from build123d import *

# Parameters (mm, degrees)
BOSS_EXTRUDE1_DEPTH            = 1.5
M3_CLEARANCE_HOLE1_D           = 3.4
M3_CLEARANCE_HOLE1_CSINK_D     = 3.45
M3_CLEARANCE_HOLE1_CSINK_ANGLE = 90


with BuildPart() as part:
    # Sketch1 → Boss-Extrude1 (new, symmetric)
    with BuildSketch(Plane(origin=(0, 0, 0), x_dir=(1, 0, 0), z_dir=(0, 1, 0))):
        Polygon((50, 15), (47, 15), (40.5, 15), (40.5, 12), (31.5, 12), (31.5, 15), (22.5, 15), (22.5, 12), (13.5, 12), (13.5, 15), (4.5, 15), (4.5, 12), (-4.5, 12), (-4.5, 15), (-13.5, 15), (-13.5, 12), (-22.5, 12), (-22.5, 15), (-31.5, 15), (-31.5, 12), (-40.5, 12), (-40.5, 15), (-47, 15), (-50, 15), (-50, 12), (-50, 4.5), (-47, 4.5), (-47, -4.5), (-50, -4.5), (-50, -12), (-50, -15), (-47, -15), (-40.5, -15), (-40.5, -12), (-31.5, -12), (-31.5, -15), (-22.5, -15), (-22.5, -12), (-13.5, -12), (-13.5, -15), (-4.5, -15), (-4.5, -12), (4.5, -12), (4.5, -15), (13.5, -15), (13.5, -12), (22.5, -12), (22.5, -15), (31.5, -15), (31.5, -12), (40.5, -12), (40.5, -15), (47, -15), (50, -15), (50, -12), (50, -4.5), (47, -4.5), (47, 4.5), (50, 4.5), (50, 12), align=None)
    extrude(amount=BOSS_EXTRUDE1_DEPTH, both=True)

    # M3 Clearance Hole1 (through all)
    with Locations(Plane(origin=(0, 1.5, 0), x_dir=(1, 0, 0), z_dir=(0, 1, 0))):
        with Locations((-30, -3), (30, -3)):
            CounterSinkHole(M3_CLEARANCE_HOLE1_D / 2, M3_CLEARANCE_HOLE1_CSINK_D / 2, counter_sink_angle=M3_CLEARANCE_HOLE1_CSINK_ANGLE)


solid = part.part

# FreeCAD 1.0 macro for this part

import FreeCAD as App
import Part
import Sketcher

V = App.Vector

doc = App.newDocument("Part")
body = doc.addObject("PartDesign::Body", "Body")

# Sketch on XZ plane
sketch1 = doc.addObject("Sketcher::SketchObject", "Sketch")
body.addObject(sketch1)
sketch1.AttachmentSupport = (doc.XZ_Plane, [""])
sketch1.MapMode = "FlatFace"
sketch1.addGeometry(Part.LineSegment(V(50, -15, 0), V(40.5, -15, 0)), False)
sketch1.addGeometry(Part.LineSegment(V(40.5, -15, 0), V(40.5, -12, 0)), False)
sketch1.addGeometry(Part.LineSegment(V(40.5, -12, 0), V(31.5, -12, 0)), False)
sketch1.addGeometry(Part.LineSegment(V(31.5, -12, 0), V(31.5, -15, 0)), False)
sketch1.addGeometry(Part.LineSegment(V(31.5, -15, 0), V(22.5, -15, 0)), False)
sketch1.addGeometry(Part.LineSegment(V(22.5, -15, 0), V(22.5, -12, 0)), False)
sketch1.addGeometry(Part.LineSegment(V(22.5, -12, 0), V(13.5, -12, 0)), False)
sketch1.addGeometry(Part.LineSegment(V(13.5, -12, 0), V(13.5, -15, 0)), False)
sketch1.addGeometry(Part.LineSegment(V(13.5, -15, 0), V(4.5, -15, 0)), False)
sketch1.addGeometry(Part.LineSegment(V(4.5, -15, 0), V(4.5, -12, 0)), False)
sketch1.addGeometry(Part.LineSegment(V(4.5, -12, 0), V(-4.5, -12, 0)), False)
sketch1.addGeometry(Part.LineSegment(V(-4.5, -12, 0), V(-4.5, -15, 0)), False)
sketch1.addGeometry(Part.LineSegment(V(-4.5, -15, 0), V(-13.5, -15, 0)), False)
sketch1.addGeometry(Part.LineSegment(V(-13.5, -15, 0), V(-13.5, -12, 0)), False)
sketch1.addGeometry(Part.LineSegment(V(-13.5, -12, 0), V(-22.5, -12, 0)), False)
sketch1.addGeometry(Part.LineSegment(V(-22.5, -12, 0), V(-22.5, -15, 0)), False)
sketch1.addGeometry(Part.LineSegment(V(-22.5, -15, 0), V(-31.5, -15, 0)), False)
sketch1.addGeometry(Part.LineSegment(V(-31.5, -15, 0), V(-31.5, -12, 0)), False)
sketch1.addGeometry(Part.LineSegment(V(-31.5, -12, 0), V(-40.5, -12, 0)), False)
sketch1.addGeometry(Part.LineSegment(V(-40.5, -12, 0), V(-40.5, -15, 0)), False)
sketch1.addGeometry(Part.LineSegment(V(-40.5, -15, 0), V(-50, -15, 0)), False)
sketch1.addGeometry(Part.LineSegment(V(-50, -15, 0), V(-50, -4.5, 0)), False)
sketch1.addGeometry(Part.LineSegment(V(-50, -4.5, 0), V(-47, -4.5, 0)), False)
sketch1.addGeometry(Part.LineSegment(V(-47, -4.5, 0), V(-47, 4.5, 0)), False)
sketch1.addGeometry(Part.LineSegment(V(-47, 4.5, 0), V(-50, 4.5, 0)), False)
sketch1.addGeometry(Part.LineSegment(V(-50, 4.5, 0), V(-50, 15, 0)), False)
sketch1.addGeometry(Part.LineSegment(V(-50, 15, 0), V(-40.5, 15, 0)), False)
sketch1.addGeometry(Part.LineSegment(V(-40.5, 15, 0), V(-40.5, 12, 0)), False)
sketch1.addGeometry(Part.LineSegment(V(-40.5, 12, 0), V(-31.5, 12, 0)), False)
sketch1.addGeometry(Part.LineSegment(V(-31.5, 12, 0), V(-31.5, 15, 0)), False)
sketch1.addGeometry(Part.LineSegment(V(-31.5, 15, 0), V(-22.5, 15, 0)), False)
sketch1.addGeometry(Part.LineSegment(V(-22.5, 15, 0), V(-22.5, 12, 0)), False)
sketch1.addGeometry(Part.LineSegment(V(-22.5, 12, 0), V(-13.5, 12, 0)), False)
sketch1.addGeometry(Part.LineSegment(V(-13.5, 12, 0), V(-13.5, 15, 0)), False)
sketch1.addGeometry(Part.LineSegment(V(-13.5, 15, 0), V(-4.5, 15, 0)), False)
sketch1.addGeometry(Part.LineSegment(V(-4.5, 15, 0), V(-4.5, 12, 0)), False)
sketch1.addGeometry(Part.LineSegment(V(-4.5, 12, 0), V(4.5, 12, 0)), False)
sketch1.addGeometry(Part.LineSegment(V(4.5, 12, 0), V(4.5, 15, 0)), False)
sketch1.addGeometry(Part.LineSegment(V(4.5, 15, 0), V(13.5, 15, 0)), False)
sketch1.addGeometry(Part.LineSegment(V(13.5, 15, 0), V(13.5, 12, 0)), False)
sketch1.addGeometry(Part.LineSegment(V(13.5, 12, 0), V(22.5, 12, 0)), False)
sketch1.addGeometry(Part.LineSegment(V(22.5, 12, 0), V(22.5, 15, 0)), False)
sketch1.addGeometry(Part.LineSegment(V(22.5, 15, 0), V(31.5, 15, 0)), False)
sketch1.addGeometry(Part.LineSegment(V(31.5, 15, 0), V(31.5, 12, 0)), False)
sketch1.addGeometry(Part.LineSegment(V(31.5, 12, 0), V(40.5, 12, 0)), False)
sketch1.addGeometry(Part.LineSegment(V(40.5, 12, 0), V(40.5, 15, 0)), False)
sketch1.addGeometry(Part.LineSegment(V(40.5, 15, 0), V(50, 15, 0)), False)
sketch1.addGeometry(Part.LineSegment(V(50, 15, 0), V(50, 4.5, 0)), False)
sketch1.addGeometry(Part.LineSegment(V(50, 4.5, 0), V(47, 4.5, 0)), False)
sketch1.addGeometry(Part.LineSegment(V(47, 4.5, 0), V(47, -4.5, 0)), False)
sketch1.addGeometry(Part.LineSegment(V(47, -4.5, 0), V(50, -4.5, 0)), False)
sketch1.addGeometry(Part.LineSegment(V(50, -4.5, 0), V(50, -15, 0)), False)
sketch1.addConstraint(Sketcher.Constraint("Coincident", 0, 2, 1, 1))
sketch1.addConstraint(Sketcher.Constraint("Coincident", 1, 2, 2, 1))
sketch1.addConstraint(Sketcher.Constraint("Coincident", 2, 2, 3, 1))
sketch1.addConstraint(Sketcher.Constraint("Coincident", 3, 2, 4, 1))
sketch1.addConstraint(Sketcher.Constraint("Coincident", 4, 2, 5, 1))
sketch1.addConstraint(Sketcher.Constraint("Coincident", 5, 2, 6, 1))
sketch1.addConstraint(Sketcher.Constraint("Coincident", 6, 2, 7, 1))
sketch1.addConstraint(Sketcher.Constraint("Coincident", 7, 2, 8, 1))
sketch1.addConstraint(Sketcher.Constraint("Coincident", 8, 2, 9, 1))
sketch1.addConstraint(Sketcher.Constraint("Coincident", 9, 2, 10, 1))
sketch1.addConstraint(Sketcher.Constraint("Coincident", 10, 2, 11, 1))
sketch1.addConstraint(Sketcher.Constraint("Coincident", 11, 2, 12, 1))
sketch1.addConstraint(Sketcher.Constraint("Coincident", 12, 2, 13, 1))
sketch1.addConstraint(Sketcher.Constraint("Coincident", 13, 2, 14, 1))
sketch1.addConstraint(Sketcher.Constraint("Coincident", 14, 2, 15, 1))
sketch1.addConstraint(Sketcher.Constraint("Coincident", 15, 2, 16, 1))
sketch1.addConstraint(Sketcher.Constraint("Coincident", 16, 2, 17, 1))
sketch1.addConstraint(Sketcher.Constraint("Coincident", 17, 2, 18, 1))
sketch1.addConstraint(Sketcher.Constraint("Coincident", 18, 2, 19, 1))
sketch1.addConstraint(Sketcher.Constraint("Coincident", 19, 2, 20, 1))
sketch1.addConstraint(Sketcher.Constraint("Coincident", 20, 2, 21, 1))
sketch1.addConstraint(Sketcher.Constraint("Coincident", 21, 2, 22, 1))
sketch1.addConstraint(Sketcher.Constraint("Coincident", 22, 2, 23, 1))
sketch1.addConstraint(Sketcher.Constraint("Coincident", 23, 2, 24, 1))
sketch1.addConstraint(Sketcher.Constraint("Coincident", 24, 2, 25, 1))
sketch1.addConstraint(Sketcher.Constraint("Coincident", 25, 2, 26, 1))
sketch1.addConstraint(Sketcher.Constraint("Coincident", 26, 2, 27, 1))
sketch1.addConstraint(Sketcher.Constraint("Coincident", 27, 2, 28, 1))
sketch1.addConstraint(Sketcher.Constraint("Coincident", 28, 2, 29, 1))
sketch1.addConstraint(Sketcher.Constraint("Coincident", 29, 2, 30, 1))
sketch1.addConstraint(Sketcher.Constraint("Coincident", 30, 2, 31, 1))
sketch1.addConstraint(Sketcher.Constraint("Coincident", 31, 2, 32, 1))
sketch1.addConstraint(Sketcher.Constraint("Coincident", 32, 2, 33, 1))
sketch1.addConstraint(Sketcher.Constraint("Coincident", 33, 2, 34, 1))
sketch1.addConstraint(Sketcher.Constraint("Coincident", 34, 2, 35, 1))
sketch1.addConstraint(Sketcher.Constraint("Coincident", 35, 2, 36, 1))
sketch1.addConstraint(Sketcher.Constraint("Coincident", 36, 2, 37, 1))
sketch1.addConstraint(Sketcher.Constraint("Coincident", 37, 2, 38, 1))
sketch1.addConstraint(Sketcher.Constraint("Coincident", 38, 2, 39, 1))
sketch1.addConstraint(Sketcher.Constraint("Coincident", 39, 2, 40, 1))
sketch1.addConstraint(Sketcher.Constraint("Coincident", 40, 2, 41, 1))
sketch1.addConstraint(Sketcher.Constraint("Coincident", 41, 2, 42, 1))
sketch1.addConstraint(Sketcher.Constraint("Coincident", 42, 2, 43, 1))
sketch1.addConstraint(Sketcher.Constraint("Coincident", 43, 2, 44, 1))
sketch1.addConstraint(Sketcher.Constraint("Coincident", 44, 2, 45, 1))
sketch1.addConstraint(Sketcher.Constraint("Coincident", 45, 2, 46, 1))
sketch1.addConstraint(Sketcher.Constraint("Coincident", 46, 2, 47, 1))
sketch1.addConstraint(Sketcher.Constraint("Coincident", 47, 2, 48, 1))
sketch1.addConstraint(Sketcher.Constraint("Coincident", 48, 2, 49, 1))
sketch1.addConstraint(Sketcher.Constraint("Coincident", 49, 2, 50, 1))
sketch1.addConstraint(Sketcher.Constraint("Coincident", 50, 2, 51, 1))
sketch1.addConstraint(Sketcher.Constraint("Coincident", 51, 2, 0, 1))
sketch1.addConstraint(Sketcher.Constraint("Horizontal", 0))
sketch1.addConstraint(Sketcher.Constraint("Vertical", 1))
sketch1.addConstraint(Sketcher.Constraint("Horizontal", 2))
sketch1.addConstraint(Sketcher.Constraint("Vertical", 3))
sketch1.addConstraint(Sketcher.Constraint("Horizontal", 4))
sketch1.addConstraint(Sketcher.Constraint("Vertical", 5))
sketch1.addConstraint(Sketcher.Constraint("Horizontal", 6))
sketch1.addConstraint(Sketcher.Constraint("Vertical", 7))
sketch1.addConstraint(Sketcher.Constraint("Horizontal", 8))
sketch1.addConstraint(Sketcher.Constraint("Vertical", 9))
sketch1.addConstraint(Sketcher.Constraint("Horizontal", 10))
sketch1.addConstraint(Sketcher.Constraint("Vertical", 11))
sketch1.addConstraint(Sketcher.Constraint("Horizontal", 12))
sketch1.addConstraint(Sketcher.Constraint("Vertical", 13))
sketch1.addConstraint(Sketcher.Constraint("Horizontal", 14))
sketch1.addConstraint(Sketcher.Constraint("Vertical", 15))
sketch1.addConstraint(Sketcher.Constraint("Horizontal", 16))
sketch1.addConstraint(Sketcher.Constraint("Vertical", 17))
sketch1.addConstraint(Sketcher.Constraint("Horizontal", 18))
sketch1.addConstraint(Sketcher.Constraint("Vertical", 19))
sketch1.addConstraint(Sketcher.Constraint("Horizontal", 20))
sketch1.addConstraint(Sketcher.Constraint("Vertical", 21))
sketch1.addConstraint(Sketcher.Constraint("Horizontal", 22))
sketch1.addConstraint(Sketcher.Constraint("Vertical", 23))
sketch1.addConstraint(Sketcher.Constraint("Horizontal", 24))
sketch1.addConstraint(Sketcher.Constraint("Vertical", 25))
sketch1.addConstraint(Sketcher.Constraint("Horizontal", 26))
sketch1.addConstraint(Sketcher.Constraint("Vertical", 27))
sketch1.addConstraint(Sketcher.Constraint("Horizontal", 28))
sketch1.addConstraint(Sketcher.Constraint("Vertical", 29))
sketch1.addConstraint(Sketcher.Constraint("Horizontal", 30))
sketch1.addConstraint(Sketcher.Constraint("Vertical", 31))
sketch1.addConstraint(Sketcher.Constraint("Horizontal", 32))
sketch1.addConstraint(Sketcher.Constraint("Vertical", 33))
sketch1.addConstraint(Sketcher.Constraint("Horizontal", 34))
sketch1.addConstraint(Sketcher.Constraint("Vertical", 35))
sketch1.addConstraint(Sketcher.Constraint("Horizontal", 36))
sketch1.addConstraint(Sketcher.Constraint("Vertical", 37))
sketch1.addConstraint(Sketcher.Constraint("Horizontal", 38))
sketch1.addConstraint(Sketcher.Constraint("Vertical", 39))
sketch1.addConstraint(Sketcher.Constraint("Horizontal", 40))
sketch1.addConstraint(Sketcher.Constraint("Vertical", 41))
sketch1.addConstraint(Sketcher.Constraint("Horizontal", 42))
sketch1.addConstraint(Sketcher.Constraint("Vertical", 43))
sketch1.addConstraint(Sketcher.Constraint("Horizontal", 44))
sketch1.addConstraint(Sketcher.Constraint("Vertical", 45))
sketch1.addConstraint(Sketcher.Constraint("Horizontal", 46))
sketch1.addConstraint(Sketcher.Constraint("Vertical", 47))
sketch1.addConstraint(Sketcher.Constraint("Horizontal", 48))
sketch1.addConstraint(Sketcher.Constraint("Vertical", 49))
sketch1.addConstraint(Sketcher.Constraint("Horizontal", 50))
sketch1.addConstraint(Sketcher.Constraint("Vertical", 51))
sketch1.addConstraint(Sketcher.Constraint("Symmetric", 0, 2, 26, 2, -1, 1))
sketch1.addConstraint(Sketcher.Constraint("Symmetric", 2, 2, 28, 2, -1, 1))
sketch1.addConstraint(Sketcher.Constraint("Symmetric", 4, 2, 30, 2, -1, 1))
sketch1.addConstraint(Sketcher.Constraint("Symmetric", 6, 2, 32, 2, -1, 1))
sketch1.addConstraint(Sketcher.Constraint("Symmetric", 8, 2, 34, 2, -1, 1))
sketch1.addConstraint(Sketcher.Constraint("Symmetric", 10, 2, 36, 2, -1, 1))
sketch1.addConstraint(Sketcher.Constraint("Symmetric", 12, 2, 38, 2, -1, 1))
sketch1.addConstraint(Sketcher.Constraint("Symmetric", 14, 2, 40, 2, -1, 1))
sketch1.addConstraint(Sketcher.Constraint("Symmetric", 16, 2, 42, 2, -1, 1))
sketch1.addConstraint(Sketcher.Constraint("Symmetric", 18, 2, 44, 2, -1, 1))
sketch1.addConstraint(Sketcher.Constraint("Symmetric", 20, 2, 46, 2, -1, 1))
sketch1.addConstraint(Sketcher.Constraint("Symmetric", 22, 2, 48, 2, -1, 1))
sketch1.addConstraint(Sketcher.Constraint("Symmetric", 24, 2, 50, 2, -1, 1))
sketch1.addConstraint(Sketcher.Constraint("Symmetric", 8, 2, 11, 2, -2))
sketch1.addConstraint(Sketcher.Constraint("Symmetric", 6, 2, 13, 2, -2))
sketch1.addConstraint(Sketcher.Constraint("Symmetric", 4, 2, 15, 2, -2))
sketch1.addConstraint(Sketcher.Constraint("Symmetric", 2, 2, 17, 2, -2))
sketch1.addConstraint(Sketcher.Constraint("Symmetric", 0, 2, 19, 2, -2))
sketch1.addConstraint(Sketcher.Constraint("Symmetric", 24, 2, 47, 2, -2))
sketch1.addConstraint(Sketcher.Constraint("Horizontal", 0, 2, 3, 2))
sketch1.addConstraint(Sketcher.Constraint("Horizontal", 2, 2, 5, 2))
sketch1.addConstraint(Sketcher.Constraint("Horizontal", 4, 2, 7, 2))
sketch1.addConstraint(Sketcher.Constraint("Horizontal", 6, 2, 9, 2))
sketch1.addConstraint(Sketcher.Constraint("Equal", 2, 4))
sketch1.addConstraint(Sketcher.Constraint("Equal", 4, 6))
sketch1.addConstraint(Sketcher.Constraint("Equal", 6, 8))
sketch1.addConstraint(Sketcher.Constraint("Equal", 8, 10))
sketch1.addConstraint(Sketcher.Constraint("Equal", 50, 1))
sketch1.addConstraint(Sketcher.Constraint("Equal", 44, 23))
sketch1.addConstraint(Sketcher.Constraint("DistanceX", 2, 2, 2, 1, 9.0))
sketch1.addConstraint(Sketcher.Constraint("DistanceX", 22, 1, 22, 2, 3.0))
sketch1.addConstraint(Sketcher.Constraint("DistanceX", 0, 2, 0, 1, 9.5))
sketch1.addConstraint(Sketcher.Constraint("DistanceY", 21, 1, 21, 2, 10.5))
pad1 = doc.addObject("PartDesign::Pad", "Pad")
body.addObject(pad1)
pad1.Profile = sketch1
pad1.Length = 3
pad1.Midplane = True

# Sketch on XZ plane
sketch2 = doc.addObject("Sketcher::SketchObject", "Sketch001")
body.addObject(sketch2)
sketch2.AttachmentSupport = (doc.XZ_Plane, [""])
sketch2.MapMode = "FlatFace"
sketch2.AttachmentOffset = App.Placement(V(0, 0, -1.5), App.Rotation())
sketch2.addGeometry(Part.Circle(V(-30, 3, 0), V(0, 0, 1), 1.7), False)
sketch2.addGeometry(Part.Circle(V(30, 3, 0), V(0, 0, 1), 1.7), False)
sketch2.addConstraint(Sketcher.Constraint("Equal", 0, 1))
sketch2.addConstraint(Sketcher.Constraint("Symmetric", 0, 3, 1, 3, -2))
sketch2.addConstraint(Sketcher.Constraint("Diameter", 0, 3.4))
sketch2.addConstraint(Sketcher.Constraint("DistanceX", 0, 3, -1, 1, 30.0))
sketch2.addConstraint(Sketcher.Constraint("DistanceY", -1, 1, 0, 3, 3.0))
doc.recompute()
hole = doc.addObject("PartDesign::Hole", "Hole")
body.addObject(hole)
hole.Profile = sketch2
hole.ThreadType = "None"
hole.Diameter = 3.4
hole.DepthType = "ThroughAll"
hole.HoleCutType = "Countersink"
hole.HoleCutDiameter = 3.45
hole.HoleCutCountersinkAngle = 90
hole.Reversed = True

doc.recompute()
